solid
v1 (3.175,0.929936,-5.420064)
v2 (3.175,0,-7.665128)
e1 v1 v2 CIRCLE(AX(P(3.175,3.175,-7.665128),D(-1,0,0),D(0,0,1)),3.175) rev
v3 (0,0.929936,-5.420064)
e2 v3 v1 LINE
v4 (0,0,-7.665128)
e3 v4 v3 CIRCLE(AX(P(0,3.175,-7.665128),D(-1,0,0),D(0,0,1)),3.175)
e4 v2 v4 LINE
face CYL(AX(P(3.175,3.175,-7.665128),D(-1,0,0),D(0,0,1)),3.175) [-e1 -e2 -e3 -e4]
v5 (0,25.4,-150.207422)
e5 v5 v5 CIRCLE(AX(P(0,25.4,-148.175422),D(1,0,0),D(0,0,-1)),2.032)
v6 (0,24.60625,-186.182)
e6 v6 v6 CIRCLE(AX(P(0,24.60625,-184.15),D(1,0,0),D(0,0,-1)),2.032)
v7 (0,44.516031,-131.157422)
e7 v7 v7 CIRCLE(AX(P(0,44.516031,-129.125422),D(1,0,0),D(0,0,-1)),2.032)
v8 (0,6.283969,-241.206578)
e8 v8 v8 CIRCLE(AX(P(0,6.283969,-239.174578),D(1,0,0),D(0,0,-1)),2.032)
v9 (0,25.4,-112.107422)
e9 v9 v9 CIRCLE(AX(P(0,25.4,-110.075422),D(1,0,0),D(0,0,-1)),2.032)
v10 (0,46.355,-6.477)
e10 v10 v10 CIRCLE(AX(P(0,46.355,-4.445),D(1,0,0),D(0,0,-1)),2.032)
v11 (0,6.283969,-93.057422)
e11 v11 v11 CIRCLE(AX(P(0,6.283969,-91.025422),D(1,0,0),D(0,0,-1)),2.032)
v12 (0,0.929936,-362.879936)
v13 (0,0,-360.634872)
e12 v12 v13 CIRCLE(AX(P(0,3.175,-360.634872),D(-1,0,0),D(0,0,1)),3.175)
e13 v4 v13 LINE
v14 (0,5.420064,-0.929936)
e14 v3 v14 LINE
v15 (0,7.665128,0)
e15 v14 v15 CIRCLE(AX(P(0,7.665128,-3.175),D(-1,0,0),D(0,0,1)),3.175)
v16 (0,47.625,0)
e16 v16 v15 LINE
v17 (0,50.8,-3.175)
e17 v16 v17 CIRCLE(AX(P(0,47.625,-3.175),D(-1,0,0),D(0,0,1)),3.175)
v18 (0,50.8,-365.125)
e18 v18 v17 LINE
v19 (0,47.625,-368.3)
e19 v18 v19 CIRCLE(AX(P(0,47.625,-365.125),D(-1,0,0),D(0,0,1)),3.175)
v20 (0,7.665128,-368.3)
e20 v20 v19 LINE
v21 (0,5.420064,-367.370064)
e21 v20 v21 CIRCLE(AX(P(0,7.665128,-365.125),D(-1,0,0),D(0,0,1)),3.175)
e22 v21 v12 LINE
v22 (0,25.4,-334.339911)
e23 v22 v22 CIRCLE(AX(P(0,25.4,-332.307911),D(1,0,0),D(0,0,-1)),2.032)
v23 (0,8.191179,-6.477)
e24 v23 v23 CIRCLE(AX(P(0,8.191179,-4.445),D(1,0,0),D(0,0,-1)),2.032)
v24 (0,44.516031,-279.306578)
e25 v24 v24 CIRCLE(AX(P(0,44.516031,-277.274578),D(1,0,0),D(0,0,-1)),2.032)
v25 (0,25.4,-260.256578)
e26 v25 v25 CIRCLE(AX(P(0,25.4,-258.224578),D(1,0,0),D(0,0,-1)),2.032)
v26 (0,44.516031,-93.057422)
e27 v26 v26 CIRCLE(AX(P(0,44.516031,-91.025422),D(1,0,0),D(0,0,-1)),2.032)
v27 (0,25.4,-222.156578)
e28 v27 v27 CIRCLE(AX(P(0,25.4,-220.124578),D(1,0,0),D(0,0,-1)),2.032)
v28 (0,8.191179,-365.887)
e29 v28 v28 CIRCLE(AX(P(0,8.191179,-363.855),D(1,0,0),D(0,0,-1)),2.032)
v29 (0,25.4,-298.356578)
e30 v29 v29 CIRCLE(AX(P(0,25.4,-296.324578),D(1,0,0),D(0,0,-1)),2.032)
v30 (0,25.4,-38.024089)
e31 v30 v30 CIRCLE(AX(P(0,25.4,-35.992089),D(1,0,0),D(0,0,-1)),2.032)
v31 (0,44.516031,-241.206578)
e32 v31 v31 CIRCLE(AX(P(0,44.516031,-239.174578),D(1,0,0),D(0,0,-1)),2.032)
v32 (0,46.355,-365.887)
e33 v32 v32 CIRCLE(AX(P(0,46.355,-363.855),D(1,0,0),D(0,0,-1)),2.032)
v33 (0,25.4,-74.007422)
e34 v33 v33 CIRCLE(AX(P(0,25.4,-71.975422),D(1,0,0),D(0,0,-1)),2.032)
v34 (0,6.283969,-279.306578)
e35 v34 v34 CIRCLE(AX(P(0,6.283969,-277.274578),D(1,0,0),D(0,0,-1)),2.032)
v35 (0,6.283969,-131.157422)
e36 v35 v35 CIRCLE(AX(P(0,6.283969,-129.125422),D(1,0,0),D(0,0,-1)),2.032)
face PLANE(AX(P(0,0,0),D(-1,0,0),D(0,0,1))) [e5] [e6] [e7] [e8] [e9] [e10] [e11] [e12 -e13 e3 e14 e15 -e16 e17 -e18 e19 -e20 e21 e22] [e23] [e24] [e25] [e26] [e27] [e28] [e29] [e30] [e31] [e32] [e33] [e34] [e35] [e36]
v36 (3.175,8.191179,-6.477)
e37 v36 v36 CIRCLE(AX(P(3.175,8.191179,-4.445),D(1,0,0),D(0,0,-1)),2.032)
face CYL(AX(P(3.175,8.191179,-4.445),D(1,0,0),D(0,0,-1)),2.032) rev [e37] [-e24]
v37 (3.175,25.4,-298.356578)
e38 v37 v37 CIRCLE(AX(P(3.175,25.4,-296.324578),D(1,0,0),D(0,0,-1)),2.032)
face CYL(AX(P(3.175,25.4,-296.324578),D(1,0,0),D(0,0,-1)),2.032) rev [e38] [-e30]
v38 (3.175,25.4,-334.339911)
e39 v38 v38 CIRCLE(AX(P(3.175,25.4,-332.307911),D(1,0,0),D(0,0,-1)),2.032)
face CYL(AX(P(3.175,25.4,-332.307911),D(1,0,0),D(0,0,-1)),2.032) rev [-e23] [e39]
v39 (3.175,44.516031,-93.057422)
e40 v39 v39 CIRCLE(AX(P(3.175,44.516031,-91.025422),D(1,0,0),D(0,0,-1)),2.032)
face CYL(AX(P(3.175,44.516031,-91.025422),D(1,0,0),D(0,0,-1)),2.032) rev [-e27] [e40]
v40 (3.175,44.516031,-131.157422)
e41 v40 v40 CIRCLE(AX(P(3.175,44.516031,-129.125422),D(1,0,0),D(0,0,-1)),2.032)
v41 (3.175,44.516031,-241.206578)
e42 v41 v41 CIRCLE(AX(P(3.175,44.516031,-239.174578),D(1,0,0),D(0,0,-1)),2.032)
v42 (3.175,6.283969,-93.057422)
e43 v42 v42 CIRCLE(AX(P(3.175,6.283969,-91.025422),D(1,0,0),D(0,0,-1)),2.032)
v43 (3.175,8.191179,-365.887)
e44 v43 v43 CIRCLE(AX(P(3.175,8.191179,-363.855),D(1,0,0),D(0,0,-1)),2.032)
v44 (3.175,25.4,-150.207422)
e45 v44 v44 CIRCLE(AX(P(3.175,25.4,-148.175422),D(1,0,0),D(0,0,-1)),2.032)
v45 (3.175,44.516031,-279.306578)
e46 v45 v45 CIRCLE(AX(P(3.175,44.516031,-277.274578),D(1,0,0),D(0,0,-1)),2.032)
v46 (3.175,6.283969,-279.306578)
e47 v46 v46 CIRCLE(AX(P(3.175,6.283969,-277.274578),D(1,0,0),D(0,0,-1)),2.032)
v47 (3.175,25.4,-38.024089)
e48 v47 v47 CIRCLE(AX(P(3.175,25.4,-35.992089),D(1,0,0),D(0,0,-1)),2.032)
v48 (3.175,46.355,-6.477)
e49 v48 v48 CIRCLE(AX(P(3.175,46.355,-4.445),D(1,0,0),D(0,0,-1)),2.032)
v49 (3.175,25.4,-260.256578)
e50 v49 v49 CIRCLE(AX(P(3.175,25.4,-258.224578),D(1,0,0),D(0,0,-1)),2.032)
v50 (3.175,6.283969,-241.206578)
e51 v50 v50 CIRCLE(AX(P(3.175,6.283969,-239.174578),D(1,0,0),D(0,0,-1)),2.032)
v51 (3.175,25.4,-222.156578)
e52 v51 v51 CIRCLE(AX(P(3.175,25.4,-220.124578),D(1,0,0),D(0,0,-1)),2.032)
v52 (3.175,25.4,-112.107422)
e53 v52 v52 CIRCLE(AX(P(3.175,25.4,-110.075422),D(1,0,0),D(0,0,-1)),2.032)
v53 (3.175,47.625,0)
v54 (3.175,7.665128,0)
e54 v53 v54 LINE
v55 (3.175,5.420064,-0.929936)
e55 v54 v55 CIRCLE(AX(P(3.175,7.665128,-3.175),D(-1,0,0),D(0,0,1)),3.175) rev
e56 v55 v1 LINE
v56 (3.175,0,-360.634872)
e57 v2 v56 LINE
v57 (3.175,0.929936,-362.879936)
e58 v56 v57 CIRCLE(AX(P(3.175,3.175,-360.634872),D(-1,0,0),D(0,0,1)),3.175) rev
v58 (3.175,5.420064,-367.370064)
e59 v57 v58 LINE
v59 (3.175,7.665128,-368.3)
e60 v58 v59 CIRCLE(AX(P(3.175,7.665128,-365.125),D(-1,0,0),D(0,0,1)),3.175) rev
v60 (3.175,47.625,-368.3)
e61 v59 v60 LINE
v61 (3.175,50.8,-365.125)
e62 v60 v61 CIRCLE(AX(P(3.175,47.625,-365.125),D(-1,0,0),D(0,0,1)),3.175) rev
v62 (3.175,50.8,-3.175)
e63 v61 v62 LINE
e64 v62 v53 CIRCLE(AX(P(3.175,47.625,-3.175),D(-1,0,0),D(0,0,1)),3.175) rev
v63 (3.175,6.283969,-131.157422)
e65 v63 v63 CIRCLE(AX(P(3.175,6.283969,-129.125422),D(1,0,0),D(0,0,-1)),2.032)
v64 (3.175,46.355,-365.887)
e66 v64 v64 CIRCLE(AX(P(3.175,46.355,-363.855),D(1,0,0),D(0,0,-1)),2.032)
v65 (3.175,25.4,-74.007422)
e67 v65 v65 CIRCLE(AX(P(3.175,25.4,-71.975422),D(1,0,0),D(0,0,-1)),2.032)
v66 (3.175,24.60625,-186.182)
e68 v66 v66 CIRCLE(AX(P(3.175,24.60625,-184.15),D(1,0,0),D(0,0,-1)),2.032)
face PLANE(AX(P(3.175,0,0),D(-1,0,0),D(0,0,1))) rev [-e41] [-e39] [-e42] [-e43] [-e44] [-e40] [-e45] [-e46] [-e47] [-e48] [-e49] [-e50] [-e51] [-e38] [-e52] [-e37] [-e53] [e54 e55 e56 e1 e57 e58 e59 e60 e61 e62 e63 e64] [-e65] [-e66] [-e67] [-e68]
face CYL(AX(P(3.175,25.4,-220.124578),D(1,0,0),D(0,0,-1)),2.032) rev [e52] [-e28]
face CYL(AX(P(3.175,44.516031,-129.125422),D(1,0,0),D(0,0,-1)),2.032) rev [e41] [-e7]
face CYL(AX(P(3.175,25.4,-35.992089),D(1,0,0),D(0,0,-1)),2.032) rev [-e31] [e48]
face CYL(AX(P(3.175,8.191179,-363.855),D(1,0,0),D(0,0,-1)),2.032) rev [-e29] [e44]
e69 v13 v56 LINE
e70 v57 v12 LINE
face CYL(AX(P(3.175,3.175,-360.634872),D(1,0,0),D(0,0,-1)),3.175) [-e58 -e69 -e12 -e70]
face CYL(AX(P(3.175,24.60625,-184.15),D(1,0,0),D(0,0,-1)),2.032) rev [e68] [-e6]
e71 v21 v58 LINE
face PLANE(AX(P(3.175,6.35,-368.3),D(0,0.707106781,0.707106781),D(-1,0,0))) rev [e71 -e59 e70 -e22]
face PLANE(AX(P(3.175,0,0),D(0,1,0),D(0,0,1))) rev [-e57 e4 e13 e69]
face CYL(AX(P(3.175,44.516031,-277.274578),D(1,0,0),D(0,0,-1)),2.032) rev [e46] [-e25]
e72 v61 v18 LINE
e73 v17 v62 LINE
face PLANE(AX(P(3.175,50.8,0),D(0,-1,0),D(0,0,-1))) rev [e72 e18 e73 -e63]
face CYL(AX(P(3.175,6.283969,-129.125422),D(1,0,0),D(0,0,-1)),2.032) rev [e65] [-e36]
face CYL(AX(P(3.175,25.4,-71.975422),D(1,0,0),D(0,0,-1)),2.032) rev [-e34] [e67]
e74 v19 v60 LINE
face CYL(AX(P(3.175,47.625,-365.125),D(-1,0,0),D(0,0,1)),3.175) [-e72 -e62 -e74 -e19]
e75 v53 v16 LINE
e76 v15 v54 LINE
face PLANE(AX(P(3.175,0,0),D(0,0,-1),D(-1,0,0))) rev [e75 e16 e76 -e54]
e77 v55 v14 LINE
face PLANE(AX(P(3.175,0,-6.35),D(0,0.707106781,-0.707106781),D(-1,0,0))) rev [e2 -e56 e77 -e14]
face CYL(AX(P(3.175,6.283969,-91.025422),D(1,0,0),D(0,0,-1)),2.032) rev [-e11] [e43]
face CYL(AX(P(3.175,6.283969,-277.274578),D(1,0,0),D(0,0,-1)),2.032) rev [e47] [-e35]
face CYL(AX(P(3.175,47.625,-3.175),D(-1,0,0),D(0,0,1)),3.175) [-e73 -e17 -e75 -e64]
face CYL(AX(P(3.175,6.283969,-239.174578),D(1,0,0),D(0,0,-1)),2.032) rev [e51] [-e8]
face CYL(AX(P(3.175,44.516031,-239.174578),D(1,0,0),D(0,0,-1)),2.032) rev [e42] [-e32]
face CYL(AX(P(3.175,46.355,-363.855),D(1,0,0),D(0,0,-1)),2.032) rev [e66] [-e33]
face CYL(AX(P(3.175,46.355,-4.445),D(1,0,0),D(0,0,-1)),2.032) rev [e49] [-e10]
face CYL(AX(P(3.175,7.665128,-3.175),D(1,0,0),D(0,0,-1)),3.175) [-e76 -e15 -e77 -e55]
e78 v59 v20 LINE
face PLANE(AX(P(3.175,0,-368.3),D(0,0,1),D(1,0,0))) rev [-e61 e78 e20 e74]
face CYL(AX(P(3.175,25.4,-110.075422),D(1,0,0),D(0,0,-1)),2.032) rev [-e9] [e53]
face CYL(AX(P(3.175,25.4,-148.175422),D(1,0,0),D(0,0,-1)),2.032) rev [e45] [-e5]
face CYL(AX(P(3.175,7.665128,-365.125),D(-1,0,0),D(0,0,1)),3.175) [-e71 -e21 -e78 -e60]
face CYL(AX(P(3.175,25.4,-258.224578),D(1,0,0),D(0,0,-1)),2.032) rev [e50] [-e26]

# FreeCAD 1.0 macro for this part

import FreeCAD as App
import Part
import Sketcher

V = App.Vector
Q = App.Units.Quantity


def edges_at(feature, points):
    """Names of the edges that pass closest to the given points."""
    edges = feature.Shape.Edges
    near = lambda p: min(range(len(edges)), key=lambda i: edges[i].distToShape(Part.Vertex(*p))[0])
    return sorted({f"Edge{near(p) + 1}" for p in points})

doc = App.newDocument("Part")
body = doc.addObject("PartDesign::Body", "Body")

# Sketch on YZ plane
sketch1 = doc.addObject("Sketcher::SketchObject", "Sketch")
body.addObject(sketch1)
sketch1.AttachmentSupport = (doc.YZ_Plane, [""])
sketch1.MapMode = "FlatFace"
sketch1.addGeometry(Part.LineSegment(V(51, 0, 0), V(0, 0, 0)), False)
sketch1.addGeometry(Part.LineSegment(V(0, 0, 0), V(0, -368, 0)), False)
sketch1.addGeometry(Part.LineSegment(V(0, -368, 0), V(51, -368, 0)), False)
sketch1.addGeometry(Part.LineSegment(V(51, -368, 0), V(51, 0, 0)), False)
sketch1.addConstraint(Sketcher.Constraint("Coincident", 0, 2, 1, 1))
sketch1.addConstraint(Sketcher.Constraint("Coincident", 1, 2, 2, 1))
sketch1.addConstraint(Sketcher.Constraint("Coincident", 2, 2, 3, 1))
sketch1.addConstraint(Sketcher.Constraint("Coincident", 3, 2, 0, 1))
sketch1.addConstraint(Sketcher.Constraint("Horizontal", 0))
sketch1.addConstraint(Sketcher.Constraint("Vertical", 1))
sketch1.addConstraint(Sketcher.Constraint("Horizontal", 2))
sketch1.addConstraint(Sketcher.Constraint("Vertical", 3))
sketch1.addConstraint(Sketcher.Constraint("Coincident", 0, 2, -1, 1))
sketch1.addConstraint(Sketcher.Constraint("DistanceX", 0, 2, 0, 1, Q("2 in")))
sketch1.addConstraint(Sketcher.Constraint("DistanceY", 1, 2, 1, 1, Q("14.5 in")))
pad1 = doc.addObject("PartDesign::Pad", "Pad")
body.addObject(pad1)
pad1.Profile = sketch1
pad1.Length = Q("0.125 in")
doc.recompute()

chamfer = doc.addObject("PartDesign::Chamfer", "Chamfer")
body.addObject(chamfer)
chamfer.Base = (pad1, edges_at(pad1, [(1.587, 0, -368.3), (1.587, 0, 0)]))
chamfer.Size = Q("0.25 in")
doc.recompute()

fillet = doc.addObject("PartDesign::Fillet", "Fillet")
body.addObject(fillet)
fillet.Base = (chamfer, edges_at(chamfer, [
    (1.587, 6.35, -368.3),
    (1.587, 0, -6.35),
    (1.587, 0, -361.95),
    (1.587, 6.35, 0),
    (1.587, 50.8, 0),
    (1.587, 50.8, -368.3),
]))
fillet.Radius = Q("0.125 in")

# Sketch on YZ plane
sketch2 = doc.addObject("Sketcher::SketchObject", "Sketch001")
body.addObject(sketch2)
sketch2.AttachmentSupport = (doc.YZ_Plane, [""])
sketch2.MapMode = "FlatFace"
sketch2.AttachmentOffset = App.Placement(V(0, 0, 0.125 * 25.4), App.Rotation())
sketch2.addGeometry(Part.Circle(V(6.3, -91, 0), V(0, 0, 1), 2), False)
sketch2.addGeometry(Part.Circle(V(44.5, -91, 0), V(0, 0, 1), 2), False)
sketch2.addGeometry(Part.Circle(V(25.4, -72, 0), V(0, 0, 1), 2), False)
sketch2.addGeometry(Part.Circle(V(25.4, -36, 0), V(0, 0, 1), 2), False)
sketch2.addGeometry(Part.Circle(V(25.4, -148.2, 0), V(0, 0, 1), 2), False)
sketch2.addGeometry(Part.Circle(V(6.3, -129.1, 0), V(0, 0, 1), 2), False)
sketch2.addGeometry(Part.Circle(V(25.4, -110.1, 0), V(0, 0, 1), 2), False)
sketch2.addGeometry(Part.Circle(V(44.5, -129.1, 0), V(0, 0, 1), 2), False)
sketch2.addGeometry(Part.Circle(V(24.6, -184.2, 0), V(0, 0, 1), 2), False)
sketch2.addGeometry(Part.Circle(V(25.4, -220.1, 0), V(0, 0, 1), 2), False)
sketch2.addGeometry(Part.Circle(V(6.3, -239.2, 0), V(0, 0, 1), 2), False)
sketch2.addGeometry(Part.Circle(V(44.5, -239.2, 0), V(0, 0, 1), 2), False)
sketch2.addGeometry(Part.Circle(V(25.4, -258.2, 0), V(0, 0, 1), 2), False)
sketch2.addGeometry(Part.Circle(V(6.3, -277.3, 0), V(0, 0, 1), 2), False)
sketch2.addGeometry(Part.Circle(V(44.5, -277.3, 0), V(0, 0, 1), 2), False)
sketch2.addGeometry(Part.Circle(V(25.4, -296.3, 0), V(0, 0, 1), 2), False)
sketch2.addGeometry(Part.Circle(V(25.4, -332.3, 0), V(0, 0, 1), 2), False)
sketch2.addGeometry(Part.Circle(V(46.4, -363.9, 0), V(0, 0, 1), 2), False)
sketch2.addGeometry(Part.Circle(V(46.4, -4.4, 0), V(0, 0, 1), 2), False)
sketch2.addGeometry(Part.Circle(V(8.2, -4.4, 0), V(0, 0, 1), 2), False)
sketch2.addGeometry(Part.Circle(V(8.2, -363.9, 0), V(0, 0, 1), 2), False)
sketch2.addConstraint(Sketcher.Constraint("Equal", 0, 1))
sketch2.addConstraint(Sketcher.Constraint("Equal", 1, 2))
sketch2.addConstraint(Sketcher.Constraint("Equal", 2, 3))
sketch2.addConstraint(Sketcher.Constraint("Equal", 3, 4))
sketch2.addConstraint(Sketcher.Constraint("Equal", 4, 5))
sketch2.addConstraint(Sketcher.Constraint("Equal", 5, 6))
sketch2.addConstraint(Sketcher.Constraint("Equal", 6, 7))
sketch2.addConstraint(Sketcher.Constraint("Equal", 7, 8))
sketch2.addConstraint(Sketcher.Constraint("Equal", 8, 9))
sketch2.addConstraint(Sketcher.Constraint("Equal", 9, 10))
sketch2.addConstraint(Sketcher.Constraint("Equal", 10, 11))
sketch2.addConstraint(Sketcher.Constraint("Equal", 11, 12))
sketch2.addConstraint(Sketcher.Constraint("Equal", 12, 13))
sketch2.addConstraint(Sketcher.Constraint("Equal", 13, 14))
sketch2.addConstraint(Sketcher.Constraint("Equal", 14, 15))
sketch2.addConstraint(Sketcher.Constraint("Equal", 15, 16))
sketch2.addConstraint(Sketcher.Constraint("Equal", 16, 17))
sketch2.addConstraint(Sketcher.Constraint("Equal", 17, 18))
sketch2.addConstraint(Sketcher.Constraint("Equal", 18, 19))
sketch2.addConstraint(Sketcher.Constraint("Equal", 19, 20))
sketch2.addConstraint(Sketcher.Constraint("Horizontal", 0, 3, 1, 3))
sketch2.addConstraint(Sketcher.Constraint("Horizontal", 5, 3, 7, 3))
sketch2.addConstraint(Sketcher.Constraint("Horizontal", 10, 3, 11, 3))
sketch2.addConstraint(Sketcher.Constraint("Horizontal", 13, 3, 14, 3))
sketch2.addConstraint(Sketcher.Constraint("Horizontal", 18, 3, 19, 3))
sketch2.addConstraint(Sketcher.Constraint("Horizontal", 17, 3, 20, 3))
sketch2.addConstraint(Sketcher.Constraint("Vertical", 2, 3, 3, 3))
sketch2.addConstraint(Sketcher.Constraint("Vertical", 3, 3, 4, 3))
sketch2.addConstraint(Sketcher.Constraint("Vertical", 0, 3, 5, 3))
sketch2.addConstraint(Sketcher.Constraint("Vertical", 4, 3, 6, 3))
sketch2.addConstraint(Sketcher.Constraint("Vertical", 1, 3, 7, 3))
sketch2.addConstraint(Sketcher.Constraint("Vertical", 6, 3, 9, 3))
sketch2.addConstraint(Sketcher.Constraint("Vertical", 5, 3, 10, 3))
sketch2.addConstraint(Sketcher.Constraint("Vertical", 7, 3, 11, 3))
sketch2.addConstraint(Sketcher.Constraint("Vertical", 9, 3, 12, 3))
sketch2.addConstraint(Sketcher.Constraint("Vertical", 10, 3, 13, 3))
sketch2.addConstraint(Sketcher.Constraint("Vertical", 11, 3, 14, 3))
sketch2.addConstraint(Sketcher.Constraint("Vertical", 12, 3, 15, 3))
sketch2.addConstraint(Sketcher.Constraint("Vertical", 15, 3, 16, 3))
sketch2.addConstraint(Sketcher.Constraint("Vertical", 17, 3, 18, 3))
sketch2.addConstraint(Sketcher.Constraint("Vertical", 19, 3, 20, 3))
sketch2.addConstraint(Sketcher.Constraint("Diameter", 0, Q("0.16 in")))
sketch2.addConstraint(Sketcher.Constraint("DistanceX", -1, 1, 2, 3, Q("1 in")))
sketch2.addConstraint(Sketcher.Constraint("DistanceY", 4, 3, 2, 3, Q("3 in")))
sketch2.addConstraint(Sketcher.Constraint("DistanceY", 5, 3, 0, 3, Q("1.5 in")))
sketch2.addConstraint(Sketcher.Constraint("DistanceY", 6, 3, 2, 3, Q("1.5 in")))
sketch2.addConstraint(Sketcher.Constraint("DistanceY", 12, 3, 9, 3, Q("1.5 in")))
sketch2.addConstraint(Sketcher.Constraint("DistanceY", 13, 3, 10, 3, Q("1.5 in")))
sketch2.addConstraint(Sketcher.Constraint("DistanceY", 15, 3, 12, 3, Q("1.5 in")))
sketch2.addConstraint(Sketcher.Constraint("DistanceY", 8, 3, -1, 1, Q("7.25 in")))
sketch2.addConstraint(Sketcher.Constraint("DistanceY", 0, 3, 2, 3, Q("0.75 in")))
sketch2.addConstraint(Sketcher.Constraint("DistanceY", 10, 3, 9, 3, Q("0.75 in")))
sketch2.addConstraint(Sketcher.Constraint("DistanceX", -1, 1, 8, 3, Q("0.96875 in")))
sketch2.addConstraint(Sketcher.Constraint("DistanceX", -1, 1, 17, 3, Q("1.825 in")))
sketch2.addConstraint(Sketcher.Constraint("DistanceY", 17, 3, -1, 1, Q("14.325 in")))
sketch2.addConstraint(Sketcher.Constraint("DistanceY", 18, 3, -1, 1, Q("0.175 in")))
sketch2.addConstraint(Sketcher.Constraint("DistanceX", -1, 1, 0, 3, 6.283969))
sketch2.addConstraint(Sketcher.Constraint("DistanceX", -1, 1, 1, 3, 44.516031))
sketch2.addConstraint(Sketcher.Constraint("DistanceY", 3, 3, -1, 1, 35.992089))
sketch2.addConstraint(Sketcher.Constraint("DistanceY", 16, 3, -1, 1, 332.307911))
sketch2.addConstraint(Sketcher.Constraint("DistanceX", -1, 1, 19, 3, 8.191179))
sketch2.addConstraint(Sketcher.Constraint("DistanceY", 0, 3, -1, 1, 91.025422))
sketch2.addConstraint(Sketcher.Constraint("DistanceY", 9, 3, -1, 1, 220.124578))
doc.recompute()
hole = doc.addObject("PartDesign::Hole", "Hole")
body.addObject(hole)
hole.Profile = sketch2
hole.ThreadType = "None"
hole.Diameter = Q("0.16 in")
hole.DepthType = "ThroughAll"

doc.recompute()
